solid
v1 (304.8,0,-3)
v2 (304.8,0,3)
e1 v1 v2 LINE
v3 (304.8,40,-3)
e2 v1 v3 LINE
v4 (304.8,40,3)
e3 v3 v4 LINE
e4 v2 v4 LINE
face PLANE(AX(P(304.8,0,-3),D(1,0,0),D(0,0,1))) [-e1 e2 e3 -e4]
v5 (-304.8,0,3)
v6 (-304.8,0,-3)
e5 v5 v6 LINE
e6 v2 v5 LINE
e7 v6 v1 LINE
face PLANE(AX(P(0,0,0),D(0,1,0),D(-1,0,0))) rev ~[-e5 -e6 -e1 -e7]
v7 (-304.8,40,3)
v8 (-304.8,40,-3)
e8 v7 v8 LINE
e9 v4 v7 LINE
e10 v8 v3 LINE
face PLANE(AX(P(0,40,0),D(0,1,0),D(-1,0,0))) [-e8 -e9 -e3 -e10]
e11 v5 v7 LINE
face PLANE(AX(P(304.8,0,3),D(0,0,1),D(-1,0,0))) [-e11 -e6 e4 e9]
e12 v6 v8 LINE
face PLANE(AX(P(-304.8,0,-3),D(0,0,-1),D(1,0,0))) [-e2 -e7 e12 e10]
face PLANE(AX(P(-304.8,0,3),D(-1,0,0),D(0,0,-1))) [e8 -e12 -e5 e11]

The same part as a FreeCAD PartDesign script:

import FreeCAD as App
import Part
import Sketcher
from FreeCAD import Vector
Q = App.Units.Quantity


def add_polygon(sketch, points):
    """Adds a closed chain of lines whose ends are joined by coincident constraints."""
    first, n = sketch.GeometryCount, len(points)
    for a, b in zip(points, points[1:] + points[:1]):
        sketch.addGeometry(Part.LineSegment(App.Vector(*a, 0), App.Vector(*b, 0)), False)
    for i in range(n):
        sketch.addConstraint(Sketcher.Constraint("Coincident", first + i, 2, first + (i + 1) % n, 1))

doc = App.newDocument("Part")
body = doc.addObject("PartDesign::Body", "Body")

# Sketch on XZ plane
sketch1 = body.newObject("Sketcher::SketchObject", "Sketch")
sketch1.AttachmentSupport = (doc.getObject("XZ_Plane"), [""])
sketch1.MapMode = "FlatFace"
add_polygon(sketch1, [(305, -3), (-305, -3), (-305, 3), (305, 3)])  # lines 0-3
sketch1.addConstraint([
    Sketcher.Constraint("Horizontal", 0),
    Sketcher.Constraint("Vertical", 1),
    Sketcher.Constraint("Horizontal", 2),
    Sketcher.Constraint("Vertical", 3),
    Sketcher.Constraint("Symmetric", 0, 2, 2, 2, -1, 1),
    Sketcher.Constraint("DistanceY", 1, 1, 1, 2, Q("6 mm")),
    Sketcher.Constraint("DistanceX", 0, 2, 0, 1, Q("609.6 mm")),
])
pad1 = body.newObject("PartDesign::Pad", "Pad")
pad1.Profile = sketch1
pad1.Length = 40
pad1.Reversed = True

doc.recompute()
